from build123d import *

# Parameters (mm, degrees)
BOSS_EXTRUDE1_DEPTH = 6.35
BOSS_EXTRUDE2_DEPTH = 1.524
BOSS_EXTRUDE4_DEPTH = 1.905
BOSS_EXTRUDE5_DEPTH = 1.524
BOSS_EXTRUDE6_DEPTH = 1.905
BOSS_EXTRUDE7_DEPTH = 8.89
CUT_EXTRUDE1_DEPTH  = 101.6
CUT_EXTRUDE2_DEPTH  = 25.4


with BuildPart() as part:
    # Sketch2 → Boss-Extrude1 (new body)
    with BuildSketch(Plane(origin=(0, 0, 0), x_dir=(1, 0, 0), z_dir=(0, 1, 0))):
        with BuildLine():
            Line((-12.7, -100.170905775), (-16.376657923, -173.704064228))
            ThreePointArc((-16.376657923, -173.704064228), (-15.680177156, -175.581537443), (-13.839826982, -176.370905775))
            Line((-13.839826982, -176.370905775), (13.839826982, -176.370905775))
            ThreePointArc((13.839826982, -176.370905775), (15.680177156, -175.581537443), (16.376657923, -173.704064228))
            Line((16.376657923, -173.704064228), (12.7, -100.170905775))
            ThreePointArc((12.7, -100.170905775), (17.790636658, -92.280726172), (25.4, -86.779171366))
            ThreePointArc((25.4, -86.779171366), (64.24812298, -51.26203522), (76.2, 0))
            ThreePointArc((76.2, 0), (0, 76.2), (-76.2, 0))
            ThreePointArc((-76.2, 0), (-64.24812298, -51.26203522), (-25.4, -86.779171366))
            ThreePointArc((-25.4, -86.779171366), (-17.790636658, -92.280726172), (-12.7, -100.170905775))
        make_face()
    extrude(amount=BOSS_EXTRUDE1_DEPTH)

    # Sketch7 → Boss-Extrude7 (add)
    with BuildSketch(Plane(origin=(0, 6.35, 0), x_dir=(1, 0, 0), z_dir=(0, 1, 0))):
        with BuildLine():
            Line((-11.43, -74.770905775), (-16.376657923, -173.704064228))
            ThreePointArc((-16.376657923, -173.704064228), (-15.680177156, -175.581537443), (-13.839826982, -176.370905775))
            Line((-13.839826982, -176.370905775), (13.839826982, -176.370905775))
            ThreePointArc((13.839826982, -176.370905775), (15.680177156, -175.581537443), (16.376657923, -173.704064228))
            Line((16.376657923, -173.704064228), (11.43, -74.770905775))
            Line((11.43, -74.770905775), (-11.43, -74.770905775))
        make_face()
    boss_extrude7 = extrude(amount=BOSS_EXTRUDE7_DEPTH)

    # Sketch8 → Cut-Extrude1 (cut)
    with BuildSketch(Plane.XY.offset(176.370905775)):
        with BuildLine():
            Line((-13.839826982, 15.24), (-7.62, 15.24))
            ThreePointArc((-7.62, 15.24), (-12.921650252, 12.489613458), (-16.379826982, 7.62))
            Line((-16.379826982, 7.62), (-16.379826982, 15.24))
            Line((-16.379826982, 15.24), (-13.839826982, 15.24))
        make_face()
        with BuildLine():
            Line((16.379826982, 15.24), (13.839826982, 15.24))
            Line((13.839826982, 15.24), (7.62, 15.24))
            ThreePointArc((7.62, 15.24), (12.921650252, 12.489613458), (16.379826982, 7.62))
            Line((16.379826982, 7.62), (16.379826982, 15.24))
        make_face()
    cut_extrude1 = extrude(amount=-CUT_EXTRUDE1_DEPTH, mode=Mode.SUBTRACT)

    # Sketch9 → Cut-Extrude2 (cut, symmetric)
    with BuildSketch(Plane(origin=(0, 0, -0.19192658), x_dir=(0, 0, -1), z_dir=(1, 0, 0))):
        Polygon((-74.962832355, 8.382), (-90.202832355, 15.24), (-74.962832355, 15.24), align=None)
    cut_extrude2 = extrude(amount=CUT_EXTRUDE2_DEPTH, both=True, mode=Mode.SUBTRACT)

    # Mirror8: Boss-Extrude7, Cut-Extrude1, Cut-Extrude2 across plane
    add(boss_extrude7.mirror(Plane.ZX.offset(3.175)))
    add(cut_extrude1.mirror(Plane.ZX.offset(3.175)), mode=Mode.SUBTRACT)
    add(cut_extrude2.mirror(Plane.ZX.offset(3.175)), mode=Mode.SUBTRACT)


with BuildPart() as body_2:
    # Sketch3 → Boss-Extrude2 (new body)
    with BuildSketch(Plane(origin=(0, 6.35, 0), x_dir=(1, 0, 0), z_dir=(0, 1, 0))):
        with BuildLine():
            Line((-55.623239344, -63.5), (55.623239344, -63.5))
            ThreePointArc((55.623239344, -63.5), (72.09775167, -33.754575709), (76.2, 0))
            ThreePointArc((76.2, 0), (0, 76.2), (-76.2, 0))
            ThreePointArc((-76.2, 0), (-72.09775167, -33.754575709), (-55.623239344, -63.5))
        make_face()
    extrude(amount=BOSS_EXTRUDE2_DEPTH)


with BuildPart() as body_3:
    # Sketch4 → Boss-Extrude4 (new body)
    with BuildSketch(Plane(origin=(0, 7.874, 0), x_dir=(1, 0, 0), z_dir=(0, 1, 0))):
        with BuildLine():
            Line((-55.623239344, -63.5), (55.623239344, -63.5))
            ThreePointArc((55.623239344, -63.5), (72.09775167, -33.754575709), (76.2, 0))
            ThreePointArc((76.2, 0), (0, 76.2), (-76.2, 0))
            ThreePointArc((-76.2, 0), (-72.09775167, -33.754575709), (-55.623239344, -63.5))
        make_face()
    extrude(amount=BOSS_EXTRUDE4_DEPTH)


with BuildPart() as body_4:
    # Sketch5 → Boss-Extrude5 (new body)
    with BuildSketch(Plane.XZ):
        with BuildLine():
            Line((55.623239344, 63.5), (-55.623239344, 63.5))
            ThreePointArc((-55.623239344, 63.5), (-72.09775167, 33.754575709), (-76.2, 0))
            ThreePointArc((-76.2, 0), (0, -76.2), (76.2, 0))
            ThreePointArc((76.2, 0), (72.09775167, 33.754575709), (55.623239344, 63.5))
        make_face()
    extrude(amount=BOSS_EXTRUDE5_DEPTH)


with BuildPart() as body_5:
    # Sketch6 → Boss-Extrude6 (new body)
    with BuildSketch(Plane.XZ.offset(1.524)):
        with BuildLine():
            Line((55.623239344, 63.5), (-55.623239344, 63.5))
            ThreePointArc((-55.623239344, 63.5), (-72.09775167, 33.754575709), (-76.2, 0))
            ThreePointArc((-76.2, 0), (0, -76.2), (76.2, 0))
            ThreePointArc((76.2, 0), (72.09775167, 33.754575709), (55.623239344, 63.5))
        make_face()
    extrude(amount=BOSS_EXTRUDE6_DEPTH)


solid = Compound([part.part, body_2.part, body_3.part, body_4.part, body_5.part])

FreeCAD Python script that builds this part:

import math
import FreeCAD as App
import Part
import Sketcher
Q = App.Units.Quantity

doc = App.newDocument("Part")
body = doc.addObject("PartDesign::Body", "Body")

sketch1 = doc.addObject("Sketcher::SketchObject", "Sketch")
body.addObject(sketch1)
sketch1.AttachmentSupport = (doc.XZ_Plane, [""])
sketch1.MapMode = "FlatFace"
sketch1.addGeometry([
    Part.LineSegment(App.Vector(-12.7, 100.170906, 0), App.Vector(-16.376658, 173.704064, 0)),
    Part.ArcOfCircle(Part.Circle(App.Vector(-13.839827, 173.830906, 0), App.Vector(0, 0, 1), 2.54), math.radians(90), math.radians(182.862405)),
    Part.LineSegment(App.Vector(-13.839827, 176.370906, 0), App.Vector(13.839827, 176.370906, 0)),
    Part.ArcOfCircle(Part.Circle(App.Vector(13.839827, 173.830906, 0), App.Vector(0, 0, 1), 2.54), math.radians(-2.862405), math.radians(90)),
    Part.LineSegment(App.Vector(16.376658, 173.704064, 0), App.Vector(12.7, 100.170906, 0)),
    Part.ArcOfCircle(Part.Circle(App.Vector(36.220836, 109.758935, 0), App.Vector(0, 0, 1), 25.4), math.radians(-157.822235), math.radians(-115.215062)),
    Part.ArcOfCircle(Part.Circle(App.Vector(-12.472924, 6.35, 0), App.Vector(0, 0, 1), 88.9), math.radians(-4.096044), math.radians(64.784938)),
    Part.ArcOfCircle(Part.Circle(App.Vector(0, 0, 0), App.Vector(0, 0, 1), 76.2), math.radians(180), math.radians(360)),
    Part.ArcOfCircle(Part.Circle(App.Vector(12.472924, 6.35, 0), App.Vector(0, 0, 1), 88.9), math.radians(115.215062), math.radians(184.096044)),
    Part.ArcOfCircle(Part.Circle(App.Vector(-36.220836, 109.758935, 0), App.Vector(0, 0, 1), 25.4), math.radians(-64.784938), math.radians(-22.177765)),
], False)
sketch1.addConstraint([
    Sketcher.Constraint("Tangent", 0, 2, 1, 2),
    Sketcher.Constraint("Tangent", 1, 1, 2, 1),
    Sketcher.Constraint("Tangent", 2, 2, 3, 2),
    Sketcher.Constraint("Tangent", 3, 1, 4, 1),
    Sketcher.Constraint("Coincident", 4, 2, 5, 1),
    Sketcher.Constraint("Tangent", 5, 2, 6, 2),
    Sketcher.Constraint("Coincident", 6, 1, 7, 2),
    Sketcher.Constraint("Coincident", 7, 1, 8, 2),
    Sketcher.Constraint("Tangent", 8, 1, 9, 1),
    Sketcher.Constraint("Coincident", 9, 2, 0, 1),
    Sketcher.Constraint("Horizontal", 2),
    Sketcher.Constraint("Coincident", 7, 3, -1, 1),
    Sketcher.Constraint("Equal", 1, 3),
    Sketcher.Constraint("Equal", 6, 8),
    Sketcher.Constraint("Equal", 5, 9),
    Sketcher.Constraint("Symmetric", 6, 3, 8, 3, -2),
    Sketcher.Constraint("Symmetric", 0, 2, 3, 1, -2),
    Sketcher.Constraint("PointOnObject", 6, 1, -1),
    Sketcher.Constraint("Horizontal", 5, 3, 9, 3),
    Sketcher.Constraint("Radius", 5, Q("1 in")),
    Sketcher.Constraint("Radius", 7, Q("3 in")),
    Sketcher.Constraint("Radius", 1, Q("0.1 in")),
    Sketcher.Constraint("Radius", 6, Q("3.5 in")),
    Sketcher.Constraint("DistanceX", -1, 1, 5, 2, Q("1 in")),
    Sketcher.Constraint("DistanceY", 4, 2, 2, 2, Q("3 in")),
    Sketcher.Constraint("DistanceX", 9, 2, 4, 2, Q("1 in")),
    Sketcher.Constraint("DistanceY", -1, 1, 6, 3, Q("0.25 in")),
    Sketcher.Constraint("DistanceX", 2, 1, 2, 2, 27.679654),
])
pad1 = doc.addObject("PartDesign::Pad", "Pad")
body.addObject(pad1)
pad1.Profile = sketch1
pad1.Length = Q("0.25 in")
pad1.Reversed = True

sketch2 = doc.addObject("Sketcher::SketchObject", "Sketch001")
body.addObject(sketch2)
sketch2.AttachmentSupport = (doc.XZ_Plane, [""])
sketch2.MapMode = "FlatFace"
sketch2.AttachmentOffset = App.Placement(App.Vector(0, 0, -0.25 * 25.4), App.Rotation())
sketch2.addGeometry([
    Part.LineSegment(App.Vector(-11.43, 74.770906, 0), App.Vector(-16.376658, 173.704064, 0)),
    Part.ArcOfCircle(Part.Circle(App.Vector(-13.839827, 173.830906, 0), App.Vector(0, 0, 1), 2.54), math.radians(90), math.radians(182.862405)),
    Part.LineSegment(App.Vector(-13.839827, 176.370906, 0), App.Vector(13.839827, 176.370906, 0)),
    Part.ArcOfCircle(Part.Circle(App.Vector(13.839827, 173.830906, 0), App.Vector(0, 0, 1), 2.54), math.radians(-2.862405), math.radians(90)),
    Part.LineSegment(App.Vector(16.376658, 173.704064, 0), App.Vector(11.43, 74.770906, 0)),
    Part.LineSegment(App.Vector(11.43, 74.770906, 0), App.Vector(-11.43, 74.770906, 0)),
], False)
sketch2.addConstraint([
    Sketcher.Constraint("Tangent", 0, 2, 1, 2),
    Sketcher.Constraint("Tangent", 1, 1, 2, 1),
    Sketcher.Constraint("Tangent", 2, 2, 3, 2),
    Sketcher.Constraint("Tangent", 3, 1, 4, 1),
    Sketcher.Constraint("Coincident", 4, 2, 5, 1),
    Sketcher.Constraint("Coincident", 5, 2, 0, 1),
    Sketcher.Constraint("Horizontal", 2),
    Sketcher.Constraint("Horizontal", 5),
    Sketcher.Constraint("Equal", 1, 3),
    Sketcher.Constraint("Symmetric", 0, 2, 3, 1, -2),
    Sketcher.Constraint("Radius", 1, Q("0.1 in")),
    Sketcher.Constraint("DistanceX", 5, 2, 5, 1, Q("0.9 in")),
    Sketcher.Constraint("DistanceY", 4, 2, 2, 2, Q("4 in")),
    Sketcher.Constraint("DistanceX", 2, 1, 2, 2, 27.679654),
    Sketcher.Constraint("DistanceY", -1, 1, 1, 3, 173.830906),
])
pad2 = doc.addObject("PartDesign::Pad", "Pad001")
body.addObject(pad2)
pad2.Profile = sketch2
pad2.Length = Q("0.35 in")
pad2.Reversed = True

sketch3 = doc.addObject("Sketcher::SketchObject", "Sketch002")
body.addObject(sketch3)
sketch3.AttachmentSupport = (doc.XY_Plane, [""])
sketch3.MapMode = "FlatFace"
sketch3.AttachmentOffset = App.Placement(App.Vector(0, 0, 176.370906), App.Rotation())
sketch3.addGeometry([
    Part.ArcOfCircle(Part.Circle(App.Vector(-4.586462, 2.907618, 0), App.Vector(0, 0, 1), 12.7), math.radians(103.81934), math.radians(158.219383)),
    Part.LineSegment(App.Vector(-7.62, 15.24, 0), App.Vector(-16.379827, 15.24, 0)),
    Part.LineSegment(App.Vector(-16.379827, 15.24, 0), App.Vector(-16.379827, 7.62, 0)),
    Part.LineSegment(App.Vector(16.379827, 15.24, 0), App.Vector(7.62, 15.24, 0)),
    Part.ArcOfCircle(Part.Circle(App.Vector(4.586462, 2.907618, 0), App.Vector(0, 0, 1), 12.7), math.radians(21.780617), math.radians(76.18066)),
    Part.LineSegment(App.Vector(16.379827, 7.62, 0), App.Vector(16.379827, 15.24, 0)),
], False)
sketch3.addConstraint([
    Sketcher.Constraint("Coincident", 0, 1, 1, 1),
    Sketcher.Constraint("Coincident", 1, 2, 2, 1),
    Sketcher.Constraint("Coincident", 2, 2, 0, 2),
    Sketcher.Constraint("Coincident", 3, 2, 4, 2),
    Sketcher.Constraint("Coincident", 4, 1, 5, 1),
    Sketcher.Constraint("Coincident", 5, 2, 3, 1),
    Sketcher.Constraint("Horizontal", 1),
    Sketcher.Constraint("Vertical", 2),
    Sketcher.Constraint("Horizontal", 3),
    Sketcher.Constraint("Vertical", 5),
    Sketcher.Constraint("Equal", 0, 4),
    Sketcher.Constraint("Symmetric", 0, 3, 4, 3, -2),
    Sketcher.Constraint("Symmetric", 1, 2, 5, 2, -2),
    Sketcher.Constraint("Radius", 0, Q("0.5 in")),
    Sketcher.Constraint("DistanceY", 2, 2, 2, 1, Q("0.3 in")),
    Sketcher.Constraint("DistanceX", 0, 1, -1, 1, Q("0.3 in")),
    Sketcher.Constraint("DistanceY", -1, 1, 0, 1, Q("0.6 in")),
    Sketcher.Constraint("DistanceX", 1, 2, 1, 1, 8.759827),
])
pocket1 = doc.addObject("PartDesign::Pocket", "Pocket")
body.addObject(pocket1)
pocket1.Profile = sketch3
pocket1.Length = Q("4 in")

sketch4 = doc.addObject("Sketcher::SketchObject", "Sketch003")
body.addObject(sketch4)
sketch4.AttachmentSupport = (doc.YZ_Plane, [""])
sketch4.MapMode = "FlatFace"
sketch4.addGeometry([
    Part.LineSegment(App.Vector(15.24, 90.010906, 0), App.Vector(8.382, 74.770906, 0)),
    Part.LineSegment(App.Vector(8.382, 74.770906, 0), App.Vector(15.24, 74.770906, 0)),
    Part.LineSegment(App.Vector(15.24, 74.770906, 0), App.Vector(15.24, 90.010906, 0)),
], False)
sketch4.addConstraint([
    Sketcher.Constraint("Coincident", 0, 2, 1, 1),
    Sketcher.Constraint("Coincident", 1, 2, 2, 1),
    Sketcher.Constraint("Coincident", 2, 2, 0, 1),
    Sketcher.Constraint("Horizontal", 1),
    Sketcher.Constraint("Vertical", 2),
    Sketcher.Constraint("DistanceY", 2, 1, 2, 2, Q("0.6 in")),
    Sketcher.Constraint("DistanceX", 1, 1, 1, 2, Q("0.27 in")),
    Sketcher.Constraint("DistanceX", -1, 1, 1, 2, Q("0.6 in")),
    Sketcher.Constraint("DistanceY", -1, 1, 0, 2, 74.770906),
])
pocket2 = doc.addObject("PartDesign::Pocket", "Pocket001")
body.addObject(pocket2)
pocket2.Profile = sketch4
pocket2.Length = Q("2 in")
pocket2.Midplane = True
doc.recompute()

datumplane = doc.addObject("PartDesign::Plane", "DatumPlane")
body.addObject(datumplane)
datumplane.AttachmentSupport = (doc.XZ_Plane, [""])
datumplane.MapMode = "FlatFace"
datumplane.AttachmentOffset = App.Placement(App.Vector(0, 0, -0.125 * 25.4), App.Rotation())
mirrored = doc.addObject("PartDesign::Mirrored", "Mirrored")
body.addObject(mirrored)
mirrored.Originals = [pad2, pocket1, pocket2]
mirrored.MirrorPlane = (datumplane, [""])
body.Tip = mirrored
body2 = doc.addObject("PartDesign::Body", "Body001")

sketch5 = doc.addObject("Sketcher::SketchObject", "Sketch004")
body2.addObject(sketch5)
sketch5.AttachmentSupport = (doc.getObject("XZ_Plane001"), [""])
sketch5.MapMode = "FlatFace"
sketch5.AttachmentOffset = App.Placement(App.Vector(0, 0, -0.25 * 25.4), App.Rotation())
sketch5.addGeometry([
    Part.LineSegment(App.Vector(-55.623239, 63.5, 0), App.Vector(55.623239, 63.5, 0)),
    Part.ArcOfCircle(Part.Circle(App.Vector(-12.472924, 6.35, 0), App.Vector(0, 0, 1), 88.9), math.radians(-4.096044), math.radians(40.005201)),
    Part.ArcOfCircle(Part.Circle(App.Vector(0, 0, 0), App.Vector(0, 0, 1), 76.2), math.radians(180), math.radians(360)),
    Part.ArcOfCircle(Part.Circle(App.Vector(12.472924, 6.35, 0), App.Vector(0, 0, 1), 88.9), math.radians(139.994799), math.radians(184.096044)),
], False)
sketch5.addConstraint([
    Sketcher.Constraint("Coincident", 0, 2, 1, 2),
    Sketcher.Constraint("Coincident", 1, 1, 2, 2),
    Sketcher.Constraint("Coincident", 2, 1, 3, 2),
    Sketcher.Constraint("Coincident", 3, 1, 0, 1),
    Sketcher.Constraint("Horizontal", 0),
    Sketcher.Constraint("Coincident", 2, 3, -1, 1),
    Sketcher.Constraint("Equal", 1, 3),
    Sketcher.Constraint("Symmetric", 1, 3, 3, 3, -2),
    Sketcher.Constraint("PointOnObject", 1, 1, -1),
    Sketcher.Constraint("Radius", 2, Q("3 in")),
    Sketcher.Constraint("Radius", 1, Q("3.5 in")),
    Sketcher.Constraint("DistanceY", -1, 1, 0, 2, Q("2.5 in")),
    Sketcher.Constraint("DistanceY", -1, 1, 1, 3, Q("0.25 in")),
])
pad3 = doc.addObject("PartDesign::Pad", "Pad002")
body2.addObject(pad3)
pad3.Profile = sketch5
pad3.Length = Q("0.06 in")
pad3.Reversed = True
body3 = doc.addObject("PartDesign::Body", "Body002")

sketch6 = doc.addObject("Sketcher::SketchObject", "Sketch005")
body3.addObject(sketch6)
sketch6.AttachmentSupport = (doc.getObject("XZ_Plane002"), [""])
sketch6.MapMode = "FlatFace"
sketch6.AttachmentOffset = App.Placement(App.Vector(0, 0, -0.31 * 25.4), App.Rotation())
sketch6.addGeometry([
    Part.LineSegment(App.Vector(-55.623239, 63.5, 0), App.Vector(55.623239, 63.5, 0)),
    Part.ArcOfCircle(Part.Circle(App.Vector(-12.472924, 6.35, 0), App.Vector(0, 0, 1), 88.9), math.radians(-4.096044), math.radians(40.005201)),
    Part.ArcOfCircle(Part.Circle(App.Vector(0, 0, 0), App.Vector(0, 0, 1), 76.2), math.radians(180), math.radians(360)),
    Part.ArcOfCircle(Part.Circle(App.Vector(12.472924, 6.35, 0), App.Vector(0, 0, 1), 88.9), math.radians(139.994799), math.radians(184.096044)),
], False)
sketch6.addConstraint([
    Sketcher.Constraint("Coincident", 0, 2, 1, 2),
    Sketcher.Constraint("Coincident", 1, 1, 2, 2),
    Sketcher.Constraint("Coincident", 2, 1, 3, 2),
    Sketcher.Constraint("Coincident", 3, 1, 0, 1),
    Sketcher.Constraint("Horizontal", 0),
    Sketcher.Constraint("Coincident", 2, 3, -1, 1),
    Sketcher.Constraint("Equal", 1, 3),
    Sketcher.Constraint("Symmetric", 1, 3, 3, 3, -2),
    Sketcher.Constraint("PointOnObject", 1, 1, -1),
    Sketcher.Constraint("Radius", 2, Q("3 in")),
    Sketcher.Constraint("Radius", 1, Q("3.5 in")),
    Sketcher.Constraint("DistanceY", -1, 1, 0, 2, Q("2.5 in")),
    Sketcher.Constraint("DistanceY", -1, 1, 1, 3, Q("0.25 in")),
])
pad4 = doc.addObject("PartDesign::Pad", "Pad003")
body3.addObject(pad4)
pad4.Profile = sketch6
pad4.Length = Q("0.075 in")
pad4.Reversed = True
body4 = doc.addObject("PartDesign::Body", "Body003")

sketch7 = doc.addObject("Sketcher::SketchObject", "Sketch006")
body4.addObject(sketch7)
sketch7.AttachmentSupport = (doc.getObject("XZ_Plane003"), [""])
sketch7.MapMode = "FlatFace"
sketch7.addGeometry([
    Part.LineSegment(App.Vector(55.623239, 63.5, 0), App.Vector(-55.623239, 63.5, 0)),
    Part.ArcOfCircle(Part.Circle(App.Vector(12.472924, 6.35, 0), App.Vector(0, 0, 1), 88.9), math.radians(139.994799), math.radians(184.096044)),
    Part.ArcOfCircle(Part.Circle(App.Vector(0, 0, 0), App.Vector(0, 0, 1), 76.2), math.radians(180), math.radians(360)),
    Part.ArcOfCircle(Part.Circle(App.Vector(-12.472924, 6.35, 0), App.Vector(0, 0, 1), 88.9), math.radians(-4.096044), math.radians(40.005201)),
], False)
sketch7.addConstraint([
    Sketcher.Constraint("Coincident", 0, 2, 1, 1),
    Sketcher.Constraint("Coincident", 1, 2, 2, 1),
    Sketcher.Constraint("Coincident", 2, 2, 3, 1),
    Sketcher.Constraint("Coincident", 3, 2, 0, 1),
    Sketcher.Constraint("Horizontal", 0),
    Sketcher.Constraint("Coincident", 2, 3, -1, 1),
    Sketcher.Constraint("Equal", 1, 3),
    Sketcher.Constraint("Symmetric", 1, 3, 3, 3, -2),
    Sketcher.Constraint("PointOnObject", 1, 2, -1),
    Sketcher.Constraint("Radius", 2, Q("3 in")),
    Sketcher.Constraint("Radius", 1, Q("3.5 in")),
    Sketcher.Constraint("DistanceY", -1, 1, 0, 2, Q("2.5 in")),
    Sketcher.Constraint("DistanceY", -1, 1, 1, 3, Q("0.25 in")),
])
pad5 = doc.addObject("PartDesign::Pad", "Pad004")
body4.addObject(pad5)
pad5.Profile = sketch7
pad5.Length = Q("0.06 in")
body5 = doc.addObject("PartDesign::Body", "Body004")

sketch8 = doc.addObject("Sketcher::SketchObject", "Sketch007")
body5.addObject(sketch8)
sketch8.AttachmentSupport = (doc.getObject("XZ_Plane004"), [""])
sketch8.MapMode = "FlatFace"
sketch8.AttachmentOffset = App.Placement(App.Vector(0, 0, 0.06 * 25.4), App.Rotation())
sketch8.addGeometry([
    Part.LineSegment(App.Vector(55.623239, 63.5, 0), App.Vector(-55.623239, 63.5, 0)),
    Part.ArcOfCircle(Part.Circle(App.Vector(12.472924, 6.35, 0), App.Vector(0, 0, 1), 88.9), math.radians(139.994799), math.radians(184.096044)),
    Part.ArcOfCircle(Part.Circle(App.Vector(0, 0, 0), App.Vector(0, 0, 1), 76.2), math.radians(180), math.radians(360)),
    Part.ArcOfCircle(Part.Circle(App.Vector(-12.472924, 6.35, 0), App.Vector(0, 0, 1), 88.9), math.radians(-4.096044), math.radians(40.005201)),
], False)
sketch8.addConstraint([
    Sketcher.Constraint("Coincident", 0, 2, 1, 1),
    Sketcher.Constraint("Coincident", 1, 2, 2, 1),
    Sketcher.Constraint("Coincident", 2, 2, 3, 1),
    Sketcher.Constraint("Coincident", 3, 2, 0, 1),
    Sketcher.Constraint("Horizontal", 0),
    Sketcher.Constraint("Coincident", 2, 3, -1, 1),
    Sketcher.Constraint("Equal", 1, 3),
    Sketcher.Constraint("Symmetric", 1, 3, 3, 3, -2),
    Sketcher.Constraint("PointOnObject", 1, 2, -1),
    Sketcher.Constraint("Radius", 2, Q("3 in")),
    Sketcher.Constraint("Radius", 1, Q("3.5 in")),
    Sketcher.Constraint("DistanceY", -1, 1, 0, 2, Q("2.5 in")),
    Sketcher.Constraint("DistanceY", -1, 1, 1, 3, Q("0.25 in")),
])
pad6 = doc.addObject("PartDesign::Pad", "Pad005")
body5.addObject(pad6)
pad6.Profile = sketch8
pad6.Length = Q("0.075 in")

doc.recompute()
